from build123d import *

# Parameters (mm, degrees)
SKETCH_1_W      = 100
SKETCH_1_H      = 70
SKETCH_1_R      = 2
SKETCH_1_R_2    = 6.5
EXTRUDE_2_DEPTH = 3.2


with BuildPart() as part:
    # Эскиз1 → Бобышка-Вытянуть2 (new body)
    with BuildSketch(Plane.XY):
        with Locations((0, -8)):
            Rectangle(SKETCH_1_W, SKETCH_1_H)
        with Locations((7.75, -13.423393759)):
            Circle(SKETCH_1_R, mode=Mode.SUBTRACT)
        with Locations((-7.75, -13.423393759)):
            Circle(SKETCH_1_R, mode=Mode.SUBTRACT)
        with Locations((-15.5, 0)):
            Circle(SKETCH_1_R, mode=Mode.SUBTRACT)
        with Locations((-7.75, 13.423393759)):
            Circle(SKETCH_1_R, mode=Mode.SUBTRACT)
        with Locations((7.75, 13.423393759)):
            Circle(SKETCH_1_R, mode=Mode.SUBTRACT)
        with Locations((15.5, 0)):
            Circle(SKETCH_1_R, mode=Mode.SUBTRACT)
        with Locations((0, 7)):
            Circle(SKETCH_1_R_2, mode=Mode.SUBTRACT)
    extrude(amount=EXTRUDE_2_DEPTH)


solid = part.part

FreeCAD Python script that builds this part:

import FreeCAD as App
import Part
import Sketcher
from FreeCAD import Vector

doc = App.newDocument("Part")
body = doc.addObject("PartDesign::Body", "Body")

sketch1 = body.newObject("Sketcher::SketchObject", "Sketch")
sketch1.AttachmentSupport = (doc.getObject("XY_Plane"), [""])
sketch1.MapMode = "FlatFace"
sketch1.addGeometry([
    Part.LineSegment(Vector(-50, 27, 0), Vector(-50, -43, 0)),
    Part.LineSegment(Vector(-50, -43, 0), Vector(50, -43, 0)),
    Part.LineSegment(Vector(50, -43, 0), Vector(50, 27, 0)),
    Part.LineSegment(Vector(50, 27, 0), Vector(-50, 27, 0)),
    Part.Circle(Vector(-7.8, -13.4, 0), Vector(0, 0, 1), 2),
    Part.Circle(Vector(7.8, -13.4, 0), Vector(0, 0, 1), 2),
    Part.Circle(Vector(-15.5, 0, 0), Vector(0, 0, 1), 2),
    Part.Circle(Vector(-7.8, 13.4, 0), Vector(0, 0, 1), 2),
    Part.Circle(Vector(0, 7, 0), Vector(0, 0, 1), 6.5),
    Part.Circle(Vector(15.5, 0, 0), Vector(0, 0, 1), 2),
    Part.Circle(Vector(7.8, 13.4, 0), Vector(0, 0, 1), 2),
], False)
sketch1.addConstraint([
    Sketcher.Constraint("Coincident", 0, 2, 1, 1),
    Sketcher.Constraint("Coincident", 1, 2, 2, 1),
    Sketcher.Constraint("Coincident", 2, 2, 3, 1),
    Sketcher.Constraint("Coincident", 3, 2, 0, 1),
    Sketcher.Constraint("Vertical", 0),
    Sketcher.Constraint("Horizontal", 1),
    Sketcher.Constraint("Vertical", 2),
    Sketcher.Constraint("Horizontal", 3),
    Sketcher.Constraint("Equal", 4, 5),
    Sketcher.Constraint("Equal", 5, 6),
    Sketcher.Constraint("Equal", 6, 7),
    Sketcher.Constraint("Equal", 7, 9),
    Sketcher.Constraint("Equal", 9, 10),
    Sketcher.Constraint("Symmetric", 5, 3, 7, 3, -1, 1),
    Sketcher.Constraint("Symmetric", 6, 3, 9, 3, -1, 1),
    Sketcher.Constraint("Symmetric", 4, 3, 10, 3, -1, 1),
    Sketcher.Constraint("Symmetric", 4, 3, 5, 3, -2),
    Sketcher.Constraint("PointOnObject", 6, 3, -1),
    Sketcher.Constraint("PointOnObject", 8, 3, -2),
    Sketcher.Constraint("Diameter", 4, 4.0),
    Sketcher.Constraint("Diameter", 8, 13.0),
    Sketcher.Constraint("DistanceX", 1, 1, 1, 2, 100.0),
    Sketcher.Constraint("DistanceY", 0, 2, 0, 1, 70.0),
    Sketcher.Constraint("DistanceY", -1, 1, 8, 3, 7.0),
    Sketcher.Constraint("DistanceX", 0, 2, -1, 1, 50.0),
    Sketcher.Constraint("DistanceY", 0, 2, -1, 1, 43.0),
    Sketcher.Constraint("DistanceX", 6, 3, 9, 3, 31.0),
    Sketcher.Constraint("DistanceX", 4, 3, 5, 3, 15.5),
    Sketcher.Constraint("DistanceY", 4, 3, -1, 1, 13.423394),
])
pad1 = body.newObject("PartDesign::Pad", "Pad")
pad1.Profile = sketch1
pad1.Length = 3.2

doc.recompute()
